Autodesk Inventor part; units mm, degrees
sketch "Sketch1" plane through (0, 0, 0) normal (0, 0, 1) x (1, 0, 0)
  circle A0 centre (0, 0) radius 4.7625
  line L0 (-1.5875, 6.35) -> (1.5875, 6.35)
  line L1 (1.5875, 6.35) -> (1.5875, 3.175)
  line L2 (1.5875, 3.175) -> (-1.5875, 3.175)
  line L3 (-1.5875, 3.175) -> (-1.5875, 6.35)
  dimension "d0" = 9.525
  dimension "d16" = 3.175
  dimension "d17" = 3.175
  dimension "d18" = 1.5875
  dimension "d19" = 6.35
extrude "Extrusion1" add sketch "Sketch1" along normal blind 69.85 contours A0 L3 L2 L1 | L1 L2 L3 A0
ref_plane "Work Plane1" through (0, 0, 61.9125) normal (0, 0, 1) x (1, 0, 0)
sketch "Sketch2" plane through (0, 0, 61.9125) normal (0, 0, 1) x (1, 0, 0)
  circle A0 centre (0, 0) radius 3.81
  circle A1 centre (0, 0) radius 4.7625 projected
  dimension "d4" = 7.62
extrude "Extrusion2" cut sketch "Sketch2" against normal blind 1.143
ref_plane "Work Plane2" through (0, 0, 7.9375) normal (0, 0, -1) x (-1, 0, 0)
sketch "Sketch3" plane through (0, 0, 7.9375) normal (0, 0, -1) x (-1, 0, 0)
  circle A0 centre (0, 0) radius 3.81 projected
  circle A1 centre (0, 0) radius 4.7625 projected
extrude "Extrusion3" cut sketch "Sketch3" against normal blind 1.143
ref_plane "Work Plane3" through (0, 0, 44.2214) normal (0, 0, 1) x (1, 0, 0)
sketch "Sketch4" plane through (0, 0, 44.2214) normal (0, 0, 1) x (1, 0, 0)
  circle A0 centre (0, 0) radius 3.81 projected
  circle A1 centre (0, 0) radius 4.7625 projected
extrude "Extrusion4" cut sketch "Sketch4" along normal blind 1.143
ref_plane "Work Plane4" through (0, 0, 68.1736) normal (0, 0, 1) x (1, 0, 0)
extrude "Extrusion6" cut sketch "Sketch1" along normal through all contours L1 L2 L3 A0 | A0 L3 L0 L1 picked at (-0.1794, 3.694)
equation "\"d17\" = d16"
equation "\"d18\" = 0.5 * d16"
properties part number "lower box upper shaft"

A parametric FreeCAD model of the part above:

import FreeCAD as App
import Part
import Sketcher
Q = App.Units.Quantity


def add_polygon(sketch, points):
    """Adds a closed chain of lines whose ends are joined by coincident constraints."""
    first, n = sketch.GeometryCount, len(points)
    for a, b in zip(points, points[1:] + points[:1]):
        sketch.addGeometry(Part.LineSegment(App.Vector(*a, 0), App.Vector(*b, 0)), False)
    for i in range(n):
        sketch.addConstraint(Sketcher.Constraint("Coincident", first + i, 2, first + (i + 1) % n, 1))

doc = App.newDocument("Part")
body = doc.addObject("PartDesign::Body", "Body")

# Sketch on XY plane
sketch1 = doc.addObject("Sketcher::SketchObject", "Sketch")
body.addObject(sketch1)
sketch1.AttachmentSupport = (doc.XY_Plane, [""])
sketch1.MapMode = "FlatFace"
sketch1.addGeometry(Part.Circle(App.Vector(0, 0, 0), App.Vector(0, 0, 1), 4.7625), False)
sketch1.addConstraint([
    Sketcher.Constraint("Coincident", 0, 3, -1, 1),
    Sketcher.Constraint("Diameter", 0, Q("0.375 in")),
])
pad1 = doc.addObject("PartDesign::Pad", "Pad")
body.addObject(pad1)
pad1.Profile = sketch1
pad1.Length = Q("2.75 in")

# Sketch on XY plane
sketch2 = doc.addObject("Sketcher::SketchObject", "Sketch001")
body.addObject(sketch2)
sketch2.AttachmentSupport = (doc.XY_Plane, [""])
sketch2.MapMode = "FlatFace"
sketch2.AttachmentOffset = App.Placement(App.Vector(0, 0, 2.4375 * 25.4), App.Rotation())
sketch2.addGeometry([
    Part.Circle(App.Vector(0, 0, 0), App.Vector(0, 0, 1), 4.7625),
    Part.Circle(App.Vector(0, 0, 0), App.Vector(0, 0, 1), 3.81),
], False)
sketch2.addConstraint([
    Sketcher.Constraint("Coincident", 0, 3, -1, 1),
    Sketcher.Constraint("Coincident", 1, 3, -1, 1),
    Sketcher.Constraint("Diameter", 1, Q("0.3 in")),
    Sketcher.Constraint("Diameter", 0, Q("0.375 in")),
])
pocket1 = doc.addObject("PartDesign::Pocket", "Pocket")
body.addObject(pocket1)
pocket1.Profile = sketch2
pocket1.Length = Q("0.045 in")

# Sketch on XY plane
sketch3 = doc.addObject("Sketcher::SketchObject", "Sketch002")
body.addObject(sketch3)
sketch3.AttachmentSupport = (doc.XY_Plane, [""])
sketch3.MapMode = "FlatFace"
sketch3.AttachmentOffset = App.Placement(App.Vector(0, 0, 0.3125 * 25.4), App.Rotation())
sketch3.addGeometry([
    Part.Circle(App.Vector(0, 0, 0), App.Vector(0, 0, 1), 4.7625),
    Part.Circle(App.Vector(0, 0, 0), App.Vector(0, 0, 1), 3.81),
], False)
sketch3.addConstraint([
    Sketcher.Constraint("Coincident", 0, 3, -1, 1),
    Sketcher.Constraint("Coincident", 1, 3, -1, 1),
    Sketcher.Constraint("Diameter", 1, Q("0.3 in")),
    Sketcher.Constraint("Diameter", 0, Q("0.375 in")),
])
pocket2 = doc.addObject("PartDesign::Pocket", "Pocket001")
body.addObject(pocket2)
pocket2.Profile = sketch3
pocket2.Length = Q("0.045 in")
pocket2.Reversed = True

# Sketch on XY plane
sketch4 = doc.addObject("Sketcher::SketchObject", "Sketch003")
body.addObject(sketch4)
sketch4.AttachmentSupport = (doc.XY_Plane, [""])
sketch4.MapMode = "FlatFace"
sketch4.AttachmentOffset = App.Placement(App.Vector(0, 0, 1.741 * 25.4), App.Rotation())
sketch4.addGeometry([
    Part.Circle(App.Vector(0, 0, 0), App.Vector(0, 0, 1), 4.7625),
    Part.Circle(App.Vector(0, 0, 0), App.Vector(0, 0, 1), 3.81),
], False)
sketch4.addConstraint([
    Sketcher.Constraint("Coincident", 0, 3, -1, 1),
    Sketcher.Constraint("Coincident", 1, 3, -1, 1),
    Sketcher.Constraint("Diameter", 1, Q("0.3 in")),
    Sketcher.Constraint("Diameter", 0, Q("0.375 in")),
])
pocket3 = doc.addObject("PartDesign::Pocket", "Pocket002")
body.addObject(pocket3)
pocket3.Profile = sketch4
pocket3.Length = Q("0.045 in")
pocket3.Reversed = True

# Sketch on XY plane
sketch5 = doc.addObject("Sketcher::SketchObject", "Sketch004")
body.addObject(sketch5)
sketch5.AttachmentSupport = (doc.XY_Plane, [""])
sketch5.MapMode = "FlatFace"
add_polygon(sketch5, [(1.5875, 3.175), (1.5875, 6.35), (-1.5875, 6.35), (-1.5875, 3.175)])  # lines 0-3
sketch5.addConstraint([
    Sketcher.Constraint("Vertical", 0),
    Sketcher.Constraint("Horizontal", 1),
    Sketcher.Constraint("Vertical", 2),
    Sketcher.Constraint("Horizontal", 3),
    Sketcher.Constraint("Equal", 3, 0),
    Sketcher.Constraint("DistanceX", 1, 2, 1, 1, Q("0.125 in")),
    Sketcher.Constraint("DistanceY", -1, 1, 0, 2, Q("0.25 in")),
    Sketcher.Constraint("DistanceX", -1, 1, 0, 2, Q("0.0625 in")),
])
pocket4 = doc.addObject("PartDesign::Pocket", "Pocket003")
body.addObject(pocket4)
pocket4.Profile = sketch5
pocket4.Type = "ThroughAll"
pocket4.Reversed = True

doc.recompute()
